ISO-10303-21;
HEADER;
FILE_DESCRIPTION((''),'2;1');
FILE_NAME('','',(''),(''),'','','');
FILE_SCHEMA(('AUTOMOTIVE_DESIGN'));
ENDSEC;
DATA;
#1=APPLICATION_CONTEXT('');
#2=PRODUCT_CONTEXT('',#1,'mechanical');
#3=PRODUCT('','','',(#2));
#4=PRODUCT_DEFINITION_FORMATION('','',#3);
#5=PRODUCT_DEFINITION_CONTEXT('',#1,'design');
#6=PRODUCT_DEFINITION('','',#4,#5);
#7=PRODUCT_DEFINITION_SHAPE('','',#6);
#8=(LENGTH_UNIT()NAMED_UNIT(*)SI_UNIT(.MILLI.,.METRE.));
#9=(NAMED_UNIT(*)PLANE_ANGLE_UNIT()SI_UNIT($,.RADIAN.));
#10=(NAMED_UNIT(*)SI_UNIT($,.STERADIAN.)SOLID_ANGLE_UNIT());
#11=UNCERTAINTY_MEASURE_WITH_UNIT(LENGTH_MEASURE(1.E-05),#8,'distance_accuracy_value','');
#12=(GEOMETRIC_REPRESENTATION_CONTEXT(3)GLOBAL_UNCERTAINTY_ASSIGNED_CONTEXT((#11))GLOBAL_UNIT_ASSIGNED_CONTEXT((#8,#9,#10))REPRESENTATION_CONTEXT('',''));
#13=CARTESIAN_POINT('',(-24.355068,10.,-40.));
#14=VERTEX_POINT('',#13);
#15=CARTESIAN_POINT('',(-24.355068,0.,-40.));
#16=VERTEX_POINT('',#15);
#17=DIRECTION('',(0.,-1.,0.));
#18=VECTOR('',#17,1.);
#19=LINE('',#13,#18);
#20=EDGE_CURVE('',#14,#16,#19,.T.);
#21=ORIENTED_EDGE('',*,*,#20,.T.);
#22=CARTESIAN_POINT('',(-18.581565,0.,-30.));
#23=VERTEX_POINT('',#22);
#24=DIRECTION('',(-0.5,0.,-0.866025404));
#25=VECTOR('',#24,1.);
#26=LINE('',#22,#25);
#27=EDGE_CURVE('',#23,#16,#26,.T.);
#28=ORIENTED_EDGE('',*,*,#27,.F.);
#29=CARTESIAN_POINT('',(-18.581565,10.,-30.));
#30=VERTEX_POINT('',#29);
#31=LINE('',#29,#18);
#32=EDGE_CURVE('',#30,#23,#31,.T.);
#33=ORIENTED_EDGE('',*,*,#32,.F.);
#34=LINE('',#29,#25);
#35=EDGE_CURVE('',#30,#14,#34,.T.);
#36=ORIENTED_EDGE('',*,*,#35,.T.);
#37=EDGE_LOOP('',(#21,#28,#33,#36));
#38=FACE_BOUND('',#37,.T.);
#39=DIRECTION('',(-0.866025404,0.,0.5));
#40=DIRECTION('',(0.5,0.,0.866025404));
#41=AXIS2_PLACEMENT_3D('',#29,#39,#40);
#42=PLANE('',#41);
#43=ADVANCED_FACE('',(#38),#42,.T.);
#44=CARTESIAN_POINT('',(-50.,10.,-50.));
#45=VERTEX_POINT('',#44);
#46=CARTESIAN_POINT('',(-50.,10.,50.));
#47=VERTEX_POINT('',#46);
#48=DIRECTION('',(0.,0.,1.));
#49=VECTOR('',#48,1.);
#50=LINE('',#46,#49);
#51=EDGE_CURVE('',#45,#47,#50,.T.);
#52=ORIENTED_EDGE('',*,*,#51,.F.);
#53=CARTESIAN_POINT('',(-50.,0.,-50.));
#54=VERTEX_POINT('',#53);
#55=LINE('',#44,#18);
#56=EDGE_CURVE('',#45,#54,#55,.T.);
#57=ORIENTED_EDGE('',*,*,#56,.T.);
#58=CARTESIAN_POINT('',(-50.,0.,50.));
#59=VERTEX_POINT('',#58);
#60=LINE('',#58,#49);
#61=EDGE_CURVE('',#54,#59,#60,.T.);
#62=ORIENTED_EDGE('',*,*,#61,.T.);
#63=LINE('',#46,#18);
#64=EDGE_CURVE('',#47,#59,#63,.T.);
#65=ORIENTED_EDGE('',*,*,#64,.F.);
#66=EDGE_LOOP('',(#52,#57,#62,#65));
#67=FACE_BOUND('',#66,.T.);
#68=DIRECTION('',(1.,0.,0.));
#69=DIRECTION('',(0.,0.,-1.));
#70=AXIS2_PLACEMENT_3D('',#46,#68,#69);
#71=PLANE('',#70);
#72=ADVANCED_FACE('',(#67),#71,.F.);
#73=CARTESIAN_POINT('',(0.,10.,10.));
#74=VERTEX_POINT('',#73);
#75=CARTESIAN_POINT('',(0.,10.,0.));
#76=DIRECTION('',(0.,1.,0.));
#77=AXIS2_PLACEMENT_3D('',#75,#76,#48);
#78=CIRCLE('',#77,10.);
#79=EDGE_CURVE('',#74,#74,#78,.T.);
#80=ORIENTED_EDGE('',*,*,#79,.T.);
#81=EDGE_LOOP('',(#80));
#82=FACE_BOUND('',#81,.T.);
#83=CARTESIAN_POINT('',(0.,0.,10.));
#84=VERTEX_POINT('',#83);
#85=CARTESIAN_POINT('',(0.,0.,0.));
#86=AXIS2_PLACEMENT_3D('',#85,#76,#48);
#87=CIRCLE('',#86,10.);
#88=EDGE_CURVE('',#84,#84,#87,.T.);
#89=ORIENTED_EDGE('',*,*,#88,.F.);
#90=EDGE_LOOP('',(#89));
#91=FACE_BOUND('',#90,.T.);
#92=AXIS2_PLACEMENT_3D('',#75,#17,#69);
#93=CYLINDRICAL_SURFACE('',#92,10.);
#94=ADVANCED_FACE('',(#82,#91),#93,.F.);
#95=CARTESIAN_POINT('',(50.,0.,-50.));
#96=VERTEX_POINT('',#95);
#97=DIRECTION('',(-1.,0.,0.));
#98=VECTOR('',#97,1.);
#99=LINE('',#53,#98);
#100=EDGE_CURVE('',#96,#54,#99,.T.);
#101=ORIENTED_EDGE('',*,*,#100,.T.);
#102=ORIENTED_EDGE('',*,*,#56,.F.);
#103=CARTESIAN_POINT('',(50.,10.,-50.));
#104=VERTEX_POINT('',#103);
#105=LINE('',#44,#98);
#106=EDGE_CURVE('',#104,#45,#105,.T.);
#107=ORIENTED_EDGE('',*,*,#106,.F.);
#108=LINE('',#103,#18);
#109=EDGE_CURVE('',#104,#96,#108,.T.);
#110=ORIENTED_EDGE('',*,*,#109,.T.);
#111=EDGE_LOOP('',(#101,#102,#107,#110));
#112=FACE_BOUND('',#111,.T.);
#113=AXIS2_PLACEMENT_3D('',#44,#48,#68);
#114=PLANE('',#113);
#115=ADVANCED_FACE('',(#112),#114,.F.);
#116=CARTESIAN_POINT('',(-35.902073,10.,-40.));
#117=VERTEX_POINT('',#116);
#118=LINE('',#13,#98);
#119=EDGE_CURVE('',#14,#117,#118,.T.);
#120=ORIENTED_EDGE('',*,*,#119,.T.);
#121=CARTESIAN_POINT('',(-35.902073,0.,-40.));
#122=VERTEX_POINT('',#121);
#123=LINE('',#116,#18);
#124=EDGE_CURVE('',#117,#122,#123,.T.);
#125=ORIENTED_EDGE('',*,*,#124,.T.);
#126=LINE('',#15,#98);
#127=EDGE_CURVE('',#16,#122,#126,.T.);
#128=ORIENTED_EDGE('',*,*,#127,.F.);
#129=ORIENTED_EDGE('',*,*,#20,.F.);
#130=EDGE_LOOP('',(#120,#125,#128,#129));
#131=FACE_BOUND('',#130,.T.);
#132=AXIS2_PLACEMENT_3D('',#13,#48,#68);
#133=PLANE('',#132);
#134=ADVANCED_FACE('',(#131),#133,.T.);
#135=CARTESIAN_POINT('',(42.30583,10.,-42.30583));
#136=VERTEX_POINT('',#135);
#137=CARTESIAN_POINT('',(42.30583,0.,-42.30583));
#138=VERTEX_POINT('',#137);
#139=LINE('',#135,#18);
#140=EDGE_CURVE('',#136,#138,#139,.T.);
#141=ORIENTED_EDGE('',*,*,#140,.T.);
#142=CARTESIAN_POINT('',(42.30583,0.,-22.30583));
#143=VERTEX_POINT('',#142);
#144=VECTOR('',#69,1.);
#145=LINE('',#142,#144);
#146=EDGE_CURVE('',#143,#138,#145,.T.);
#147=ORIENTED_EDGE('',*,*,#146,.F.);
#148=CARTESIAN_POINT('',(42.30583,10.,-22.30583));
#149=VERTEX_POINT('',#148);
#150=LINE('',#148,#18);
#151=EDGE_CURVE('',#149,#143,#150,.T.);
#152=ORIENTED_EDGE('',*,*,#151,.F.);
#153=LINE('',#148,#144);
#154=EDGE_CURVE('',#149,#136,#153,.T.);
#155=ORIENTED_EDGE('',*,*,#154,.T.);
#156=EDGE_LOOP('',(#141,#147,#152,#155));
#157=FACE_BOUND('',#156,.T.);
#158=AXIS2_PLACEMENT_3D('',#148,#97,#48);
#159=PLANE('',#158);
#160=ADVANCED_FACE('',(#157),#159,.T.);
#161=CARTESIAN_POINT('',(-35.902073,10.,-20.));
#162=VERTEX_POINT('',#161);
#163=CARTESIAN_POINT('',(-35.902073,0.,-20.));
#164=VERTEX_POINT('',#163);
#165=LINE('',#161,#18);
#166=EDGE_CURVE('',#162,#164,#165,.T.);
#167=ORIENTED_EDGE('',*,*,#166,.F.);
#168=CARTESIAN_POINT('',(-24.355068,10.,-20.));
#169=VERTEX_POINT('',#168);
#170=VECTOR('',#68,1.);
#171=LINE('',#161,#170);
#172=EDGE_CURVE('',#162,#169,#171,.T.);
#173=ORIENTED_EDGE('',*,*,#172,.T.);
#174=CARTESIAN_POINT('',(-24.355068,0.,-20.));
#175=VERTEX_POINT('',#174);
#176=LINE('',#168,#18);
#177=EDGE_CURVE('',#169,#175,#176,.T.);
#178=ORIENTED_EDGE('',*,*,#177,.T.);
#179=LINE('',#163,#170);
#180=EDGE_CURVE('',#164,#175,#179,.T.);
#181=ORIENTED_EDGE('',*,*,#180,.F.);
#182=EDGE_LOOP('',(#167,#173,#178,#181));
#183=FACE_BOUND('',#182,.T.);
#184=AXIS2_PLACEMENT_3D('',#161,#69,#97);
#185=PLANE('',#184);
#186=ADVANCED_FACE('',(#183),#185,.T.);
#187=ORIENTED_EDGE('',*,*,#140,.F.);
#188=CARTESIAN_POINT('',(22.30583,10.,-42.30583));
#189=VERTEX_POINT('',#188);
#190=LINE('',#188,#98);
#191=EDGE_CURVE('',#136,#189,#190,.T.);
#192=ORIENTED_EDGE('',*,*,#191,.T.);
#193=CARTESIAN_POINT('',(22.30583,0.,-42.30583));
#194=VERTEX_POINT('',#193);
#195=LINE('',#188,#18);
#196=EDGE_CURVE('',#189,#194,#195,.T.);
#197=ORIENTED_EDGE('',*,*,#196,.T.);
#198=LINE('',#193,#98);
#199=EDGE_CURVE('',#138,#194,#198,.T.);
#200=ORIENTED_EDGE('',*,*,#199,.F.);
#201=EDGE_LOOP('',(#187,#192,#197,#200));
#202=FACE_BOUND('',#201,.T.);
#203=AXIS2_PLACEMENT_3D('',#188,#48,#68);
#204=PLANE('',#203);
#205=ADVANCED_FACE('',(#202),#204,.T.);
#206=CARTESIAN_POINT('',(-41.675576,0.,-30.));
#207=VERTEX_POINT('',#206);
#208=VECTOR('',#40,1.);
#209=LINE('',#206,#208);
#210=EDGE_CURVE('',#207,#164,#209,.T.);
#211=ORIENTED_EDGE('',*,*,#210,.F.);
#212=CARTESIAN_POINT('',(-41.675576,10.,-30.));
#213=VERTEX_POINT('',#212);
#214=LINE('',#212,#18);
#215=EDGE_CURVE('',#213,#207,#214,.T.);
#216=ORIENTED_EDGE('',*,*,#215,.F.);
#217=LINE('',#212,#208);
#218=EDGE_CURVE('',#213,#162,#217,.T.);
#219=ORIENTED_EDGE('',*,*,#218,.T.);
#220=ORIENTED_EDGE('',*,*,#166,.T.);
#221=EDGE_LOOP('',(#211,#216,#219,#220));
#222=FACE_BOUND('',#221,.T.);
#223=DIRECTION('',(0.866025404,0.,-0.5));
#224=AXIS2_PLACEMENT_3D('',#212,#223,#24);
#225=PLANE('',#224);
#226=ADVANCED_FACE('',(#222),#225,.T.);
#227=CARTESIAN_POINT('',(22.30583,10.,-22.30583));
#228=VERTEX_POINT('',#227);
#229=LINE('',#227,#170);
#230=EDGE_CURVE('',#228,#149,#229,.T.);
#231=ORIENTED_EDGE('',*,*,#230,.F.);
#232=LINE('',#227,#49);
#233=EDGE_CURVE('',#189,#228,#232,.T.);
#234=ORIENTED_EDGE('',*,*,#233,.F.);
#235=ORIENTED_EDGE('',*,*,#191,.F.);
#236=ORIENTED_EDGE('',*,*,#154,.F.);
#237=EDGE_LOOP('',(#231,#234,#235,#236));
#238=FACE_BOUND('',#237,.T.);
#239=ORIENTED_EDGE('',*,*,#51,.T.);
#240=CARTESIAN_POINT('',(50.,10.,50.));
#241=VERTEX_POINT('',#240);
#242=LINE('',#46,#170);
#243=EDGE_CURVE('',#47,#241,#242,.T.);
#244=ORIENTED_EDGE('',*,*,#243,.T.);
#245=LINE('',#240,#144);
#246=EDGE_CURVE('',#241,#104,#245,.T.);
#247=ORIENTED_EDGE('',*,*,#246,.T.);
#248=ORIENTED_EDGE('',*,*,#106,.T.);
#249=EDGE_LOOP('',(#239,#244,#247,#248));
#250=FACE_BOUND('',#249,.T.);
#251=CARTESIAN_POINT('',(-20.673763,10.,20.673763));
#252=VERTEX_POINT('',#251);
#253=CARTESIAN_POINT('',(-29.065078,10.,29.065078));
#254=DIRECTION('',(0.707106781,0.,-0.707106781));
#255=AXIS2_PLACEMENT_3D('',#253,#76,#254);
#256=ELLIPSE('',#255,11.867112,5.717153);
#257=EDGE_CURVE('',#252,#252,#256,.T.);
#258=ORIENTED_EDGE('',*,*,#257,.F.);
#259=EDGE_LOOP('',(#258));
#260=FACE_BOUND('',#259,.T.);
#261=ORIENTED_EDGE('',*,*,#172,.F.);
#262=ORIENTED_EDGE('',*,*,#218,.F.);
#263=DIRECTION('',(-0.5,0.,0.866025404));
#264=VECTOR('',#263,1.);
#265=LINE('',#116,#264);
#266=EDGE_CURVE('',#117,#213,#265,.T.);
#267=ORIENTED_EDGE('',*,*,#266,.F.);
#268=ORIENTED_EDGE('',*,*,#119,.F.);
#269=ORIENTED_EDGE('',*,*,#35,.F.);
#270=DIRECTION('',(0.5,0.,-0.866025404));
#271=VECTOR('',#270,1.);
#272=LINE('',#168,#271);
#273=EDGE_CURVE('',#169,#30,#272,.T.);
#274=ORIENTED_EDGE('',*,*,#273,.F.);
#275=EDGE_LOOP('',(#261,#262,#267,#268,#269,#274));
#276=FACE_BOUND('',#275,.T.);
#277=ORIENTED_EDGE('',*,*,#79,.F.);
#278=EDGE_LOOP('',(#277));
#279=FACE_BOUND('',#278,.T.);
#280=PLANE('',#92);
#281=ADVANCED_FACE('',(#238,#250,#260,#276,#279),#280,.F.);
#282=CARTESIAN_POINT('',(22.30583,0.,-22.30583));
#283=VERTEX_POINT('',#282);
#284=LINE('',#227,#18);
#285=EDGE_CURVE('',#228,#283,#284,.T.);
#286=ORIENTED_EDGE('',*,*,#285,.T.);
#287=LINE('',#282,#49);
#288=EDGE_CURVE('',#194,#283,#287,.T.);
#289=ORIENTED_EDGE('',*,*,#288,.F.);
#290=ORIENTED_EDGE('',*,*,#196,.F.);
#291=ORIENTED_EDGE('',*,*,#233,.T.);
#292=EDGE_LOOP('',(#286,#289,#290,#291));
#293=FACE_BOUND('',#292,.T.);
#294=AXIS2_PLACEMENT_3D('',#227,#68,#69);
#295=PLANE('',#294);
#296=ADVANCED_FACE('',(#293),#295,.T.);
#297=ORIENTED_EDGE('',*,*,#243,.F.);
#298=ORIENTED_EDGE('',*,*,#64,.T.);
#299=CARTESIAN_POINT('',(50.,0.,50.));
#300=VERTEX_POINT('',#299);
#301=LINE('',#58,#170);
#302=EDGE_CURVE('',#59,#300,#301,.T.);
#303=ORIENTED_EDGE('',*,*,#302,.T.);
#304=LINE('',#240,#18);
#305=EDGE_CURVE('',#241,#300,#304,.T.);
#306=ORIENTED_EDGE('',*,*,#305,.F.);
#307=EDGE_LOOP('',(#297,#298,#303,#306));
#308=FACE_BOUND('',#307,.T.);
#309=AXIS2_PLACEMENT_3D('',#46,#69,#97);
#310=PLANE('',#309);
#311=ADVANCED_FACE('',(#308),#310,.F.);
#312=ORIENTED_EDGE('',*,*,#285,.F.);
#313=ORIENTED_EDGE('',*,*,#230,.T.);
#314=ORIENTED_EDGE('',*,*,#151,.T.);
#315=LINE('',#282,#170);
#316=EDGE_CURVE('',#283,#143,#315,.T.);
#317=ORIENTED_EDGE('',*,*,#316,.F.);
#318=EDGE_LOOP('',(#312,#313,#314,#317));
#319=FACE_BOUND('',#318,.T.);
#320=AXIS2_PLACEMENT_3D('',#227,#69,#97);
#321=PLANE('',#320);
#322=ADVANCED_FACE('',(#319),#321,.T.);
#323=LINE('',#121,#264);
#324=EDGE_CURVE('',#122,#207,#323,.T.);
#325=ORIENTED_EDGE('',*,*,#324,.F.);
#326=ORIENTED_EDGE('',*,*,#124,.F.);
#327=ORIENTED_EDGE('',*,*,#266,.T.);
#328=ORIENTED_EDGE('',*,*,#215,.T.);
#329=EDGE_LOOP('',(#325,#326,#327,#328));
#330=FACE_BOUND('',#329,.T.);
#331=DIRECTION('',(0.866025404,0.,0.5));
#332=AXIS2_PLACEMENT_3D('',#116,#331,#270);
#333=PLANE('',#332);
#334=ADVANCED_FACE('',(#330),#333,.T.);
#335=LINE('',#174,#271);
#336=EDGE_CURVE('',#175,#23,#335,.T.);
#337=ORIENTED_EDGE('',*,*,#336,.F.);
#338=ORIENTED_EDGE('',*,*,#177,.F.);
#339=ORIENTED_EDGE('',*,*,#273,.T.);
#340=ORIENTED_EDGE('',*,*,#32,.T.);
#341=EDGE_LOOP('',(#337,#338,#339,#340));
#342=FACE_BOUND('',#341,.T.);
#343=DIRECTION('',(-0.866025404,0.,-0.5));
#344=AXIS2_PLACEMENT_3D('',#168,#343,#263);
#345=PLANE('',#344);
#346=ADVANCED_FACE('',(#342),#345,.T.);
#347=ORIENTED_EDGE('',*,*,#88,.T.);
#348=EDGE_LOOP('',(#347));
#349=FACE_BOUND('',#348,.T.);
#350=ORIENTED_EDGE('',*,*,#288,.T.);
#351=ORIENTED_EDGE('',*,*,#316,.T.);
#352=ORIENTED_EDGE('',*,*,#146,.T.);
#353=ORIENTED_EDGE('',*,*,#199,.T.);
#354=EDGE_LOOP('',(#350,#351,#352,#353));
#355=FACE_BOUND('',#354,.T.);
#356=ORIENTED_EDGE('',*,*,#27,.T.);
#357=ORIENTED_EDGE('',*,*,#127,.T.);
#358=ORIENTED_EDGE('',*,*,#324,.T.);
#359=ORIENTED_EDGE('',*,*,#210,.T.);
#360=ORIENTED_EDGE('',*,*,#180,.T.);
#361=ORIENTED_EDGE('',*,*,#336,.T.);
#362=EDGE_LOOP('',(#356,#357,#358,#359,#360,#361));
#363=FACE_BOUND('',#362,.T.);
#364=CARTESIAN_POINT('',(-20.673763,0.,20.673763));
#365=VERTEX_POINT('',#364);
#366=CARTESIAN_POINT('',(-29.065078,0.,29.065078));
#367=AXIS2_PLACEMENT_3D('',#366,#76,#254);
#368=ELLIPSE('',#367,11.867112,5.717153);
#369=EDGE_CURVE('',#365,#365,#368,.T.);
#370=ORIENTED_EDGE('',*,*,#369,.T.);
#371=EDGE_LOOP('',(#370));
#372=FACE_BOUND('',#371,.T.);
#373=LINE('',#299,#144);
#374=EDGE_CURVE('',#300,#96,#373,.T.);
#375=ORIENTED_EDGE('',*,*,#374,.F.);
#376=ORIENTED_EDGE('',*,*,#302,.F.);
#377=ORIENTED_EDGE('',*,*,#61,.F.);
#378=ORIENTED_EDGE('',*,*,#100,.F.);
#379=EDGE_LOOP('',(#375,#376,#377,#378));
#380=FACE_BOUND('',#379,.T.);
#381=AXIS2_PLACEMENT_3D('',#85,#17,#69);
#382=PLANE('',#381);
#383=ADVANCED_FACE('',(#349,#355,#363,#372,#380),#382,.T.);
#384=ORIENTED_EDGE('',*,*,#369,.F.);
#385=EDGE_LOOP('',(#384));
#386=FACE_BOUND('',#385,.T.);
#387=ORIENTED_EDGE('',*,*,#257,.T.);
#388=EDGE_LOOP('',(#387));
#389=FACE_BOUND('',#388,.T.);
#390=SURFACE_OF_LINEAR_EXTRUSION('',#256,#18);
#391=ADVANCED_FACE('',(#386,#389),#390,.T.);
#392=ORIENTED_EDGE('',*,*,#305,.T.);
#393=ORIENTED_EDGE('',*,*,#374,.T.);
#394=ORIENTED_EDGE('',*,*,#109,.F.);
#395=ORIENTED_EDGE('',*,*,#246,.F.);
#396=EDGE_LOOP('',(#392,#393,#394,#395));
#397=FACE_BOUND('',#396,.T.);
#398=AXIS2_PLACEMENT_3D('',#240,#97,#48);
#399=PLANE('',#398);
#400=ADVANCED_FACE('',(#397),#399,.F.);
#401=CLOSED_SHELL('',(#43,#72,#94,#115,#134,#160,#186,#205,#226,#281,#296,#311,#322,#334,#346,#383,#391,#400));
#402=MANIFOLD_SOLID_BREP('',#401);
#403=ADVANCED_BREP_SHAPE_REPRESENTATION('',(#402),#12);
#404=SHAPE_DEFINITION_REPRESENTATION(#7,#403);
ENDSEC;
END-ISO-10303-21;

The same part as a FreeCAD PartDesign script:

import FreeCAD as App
import Part
import Sketcher
Q = App.Units.Quantity

doc = App.newDocument("Part")
body = doc.addObject("PartDesign::Body", "Body")

sketch1 = body.newObject("Sketcher::SketchObject", "Sketch")
sketch1.AttachmentSupport = (doc.getObject("XZ_Plane"), [""])
sketch1.MapMode = "FlatFace"
sketch1.addGeometry([
    Part.LineSegment(App.Vector(-50, -50, 0), App.Vector(-50, 50, 0)),
    Part.LineSegment(App.Vector(-50, 50, 0), App.Vector(50, 50, 0)),
    Part.LineSegment(App.Vector(50, 50, 0), App.Vector(50, -50, 0)),
    Part.LineSegment(App.Vector(50, -50, 0), App.Vector(-50, -50, 0)),
    Part.Ellipse(App.Vector(-20.673763, 20.673763, 0), App.Vector(-25.022441, 33.107716, 0), App.Vector(-29.065078, 29.065078, 0)),
    Part.Circle(App.Vector(0, 0, 0), App.Vector(0, 0, 1), 10),
    Part.LineSegment(App.Vector(-24.355068, -40, 0), App.Vector(-18.581565, -30, 0)),
    Part.LineSegment(App.Vector(-18.581565, -30, 0), App.Vector(-24.355068, -20, 0)),
    Part.LineSegment(App.Vector(-24.355068, -20, 0), App.Vector(-35.902073, -20, 0)),
    Part.LineSegment(App.Vector(-35.902073, -20, 0), App.Vector(-41.675576, -30, 0)),
    Part.LineSegment(App.Vector(-41.675576, -30, 0), App.Vector(-35.902073, -40, 0)),
    Part.LineSegment(App.Vector(-35.902073, -40, 0), App.Vector(-24.355068, -40, 0)),
    Part.LineSegment(App.Vector(42.30583, -22.30583, 0), App.Vector(22.30583, -22.30583, 0)),
    Part.LineSegment(App.Vector(22.30583, -22.30583, 0), App.Vector(22.30583, -42.30583, 0)),
    Part.LineSegment(App.Vector(22.30583, -42.30583, 0), App.Vector(42.30583, -42.30583, 0)),
    Part.LineSegment(App.Vector(42.30583, -42.30583, 0), App.Vector(42.30583, -22.30583, 0)),
], False)
sketch1.addConstraint([
    Sketcher.Constraint("Block", 4),
    Sketcher.Constraint("Coincident", 0, 2, 1, 1),
    Sketcher.Constraint("Coincident", 1, 2, 2, 1),
    Sketcher.Constraint("Coincident", 2, 2, 3, 1),
    Sketcher.Constraint("Coincident", 3, 2, 0, 1),
    Sketcher.Constraint("Coincident", 6, 2, 7, 1),
    Sketcher.Constraint("Coincident", 7, 2, 8, 1),
    Sketcher.Constraint("Coincident", 8, 2, 9, 1),
    Sketcher.Constraint("Coincident", 9, 2, 10, 1),
    Sketcher.Constraint("Coincident", 10, 2, 11, 1),
    Sketcher.Constraint("Coincident", 11, 2, 6, 1),
    Sketcher.Constraint("Coincident", 12, 2, 13, 1),
    Sketcher.Constraint("Coincident", 13, 2, 14, 1),
    Sketcher.Constraint("Coincident", 14, 2, 15, 1),
    Sketcher.Constraint("Coincident", 15, 2, 12, 1),
    Sketcher.Constraint("Vertical", 0),
    Sketcher.Constraint("Horizontal", 1),
    Sketcher.Constraint("Vertical", 2),
    Sketcher.Constraint("Horizontal", 3),
    Sketcher.Constraint("Horizontal", 8),
    Sketcher.Constraint("Horizontal", 11),
    Sketcher.Constraint("Horizontal", 12),
    Sketcher.Constraint("Vertical", 13),
    Sketcher.Constraint("Horizontal", 14),
    Sketcher.Constraint("Vertical", 15),
    Sketcher.Constraint("Coincident", 5, 3, -1, 1),
    Sketcher.Constraint("Symmetric", 0, 2, 2, 2, -1, 1),
    Sketcher.Constraint("Parallel", 6, 9),
    Sketcher.Constraint("Parallel", 7, 10),
    Sketcher.Constraint("Horizontal", 6, 2, 9, 2),
    Sketcher.Constraint("Vertical", 8, 2, 10, 2),
    Sketcher.Constraint("Vertical", 7, 2, 11, 2),
    Sketcher.Constraint("Equal", 3, 0),
    Sketcher.Constraint("Equal", 14, 13),
    Sketcher.Constraint("Diameter", 5, 20.0),
    Sketcher.Constraint("DistanceX", 1, 1, 1, 2, 100.0),
    Sketcher.Constraint("DistanceX", 12, 2, 12, 1, 20.0),
    Sketcher.Constraint("Angle", 6, Q("60 deg")),
    Sketcher.Constraint("DistanceY", 6, 2, -1, 1, 30.0),
    Sketcher.Constraint("DistanceY", 7, 2, -1, 1, 20.0),
    Sketcher.Constraint("DistanceX", 7, 2, 12, 2, 46.660898),
    Sketcher.Constraint("DistanceX", 8, 2, 8, 1, 11.547005),
    Sketcher.Constraint("DistanceX", -1, 1, 12, 2, 22.30583),
    Sketcher.Constraint("DistanceY", 12, 2, -1, 1, 22.30583),
])
pad1 = body.newObject("PartDesign::Pad", "Pad")
pad1.Profile = sketch1
pad1.Length = 10
pad1.Reversed = True

doc.recompute()
